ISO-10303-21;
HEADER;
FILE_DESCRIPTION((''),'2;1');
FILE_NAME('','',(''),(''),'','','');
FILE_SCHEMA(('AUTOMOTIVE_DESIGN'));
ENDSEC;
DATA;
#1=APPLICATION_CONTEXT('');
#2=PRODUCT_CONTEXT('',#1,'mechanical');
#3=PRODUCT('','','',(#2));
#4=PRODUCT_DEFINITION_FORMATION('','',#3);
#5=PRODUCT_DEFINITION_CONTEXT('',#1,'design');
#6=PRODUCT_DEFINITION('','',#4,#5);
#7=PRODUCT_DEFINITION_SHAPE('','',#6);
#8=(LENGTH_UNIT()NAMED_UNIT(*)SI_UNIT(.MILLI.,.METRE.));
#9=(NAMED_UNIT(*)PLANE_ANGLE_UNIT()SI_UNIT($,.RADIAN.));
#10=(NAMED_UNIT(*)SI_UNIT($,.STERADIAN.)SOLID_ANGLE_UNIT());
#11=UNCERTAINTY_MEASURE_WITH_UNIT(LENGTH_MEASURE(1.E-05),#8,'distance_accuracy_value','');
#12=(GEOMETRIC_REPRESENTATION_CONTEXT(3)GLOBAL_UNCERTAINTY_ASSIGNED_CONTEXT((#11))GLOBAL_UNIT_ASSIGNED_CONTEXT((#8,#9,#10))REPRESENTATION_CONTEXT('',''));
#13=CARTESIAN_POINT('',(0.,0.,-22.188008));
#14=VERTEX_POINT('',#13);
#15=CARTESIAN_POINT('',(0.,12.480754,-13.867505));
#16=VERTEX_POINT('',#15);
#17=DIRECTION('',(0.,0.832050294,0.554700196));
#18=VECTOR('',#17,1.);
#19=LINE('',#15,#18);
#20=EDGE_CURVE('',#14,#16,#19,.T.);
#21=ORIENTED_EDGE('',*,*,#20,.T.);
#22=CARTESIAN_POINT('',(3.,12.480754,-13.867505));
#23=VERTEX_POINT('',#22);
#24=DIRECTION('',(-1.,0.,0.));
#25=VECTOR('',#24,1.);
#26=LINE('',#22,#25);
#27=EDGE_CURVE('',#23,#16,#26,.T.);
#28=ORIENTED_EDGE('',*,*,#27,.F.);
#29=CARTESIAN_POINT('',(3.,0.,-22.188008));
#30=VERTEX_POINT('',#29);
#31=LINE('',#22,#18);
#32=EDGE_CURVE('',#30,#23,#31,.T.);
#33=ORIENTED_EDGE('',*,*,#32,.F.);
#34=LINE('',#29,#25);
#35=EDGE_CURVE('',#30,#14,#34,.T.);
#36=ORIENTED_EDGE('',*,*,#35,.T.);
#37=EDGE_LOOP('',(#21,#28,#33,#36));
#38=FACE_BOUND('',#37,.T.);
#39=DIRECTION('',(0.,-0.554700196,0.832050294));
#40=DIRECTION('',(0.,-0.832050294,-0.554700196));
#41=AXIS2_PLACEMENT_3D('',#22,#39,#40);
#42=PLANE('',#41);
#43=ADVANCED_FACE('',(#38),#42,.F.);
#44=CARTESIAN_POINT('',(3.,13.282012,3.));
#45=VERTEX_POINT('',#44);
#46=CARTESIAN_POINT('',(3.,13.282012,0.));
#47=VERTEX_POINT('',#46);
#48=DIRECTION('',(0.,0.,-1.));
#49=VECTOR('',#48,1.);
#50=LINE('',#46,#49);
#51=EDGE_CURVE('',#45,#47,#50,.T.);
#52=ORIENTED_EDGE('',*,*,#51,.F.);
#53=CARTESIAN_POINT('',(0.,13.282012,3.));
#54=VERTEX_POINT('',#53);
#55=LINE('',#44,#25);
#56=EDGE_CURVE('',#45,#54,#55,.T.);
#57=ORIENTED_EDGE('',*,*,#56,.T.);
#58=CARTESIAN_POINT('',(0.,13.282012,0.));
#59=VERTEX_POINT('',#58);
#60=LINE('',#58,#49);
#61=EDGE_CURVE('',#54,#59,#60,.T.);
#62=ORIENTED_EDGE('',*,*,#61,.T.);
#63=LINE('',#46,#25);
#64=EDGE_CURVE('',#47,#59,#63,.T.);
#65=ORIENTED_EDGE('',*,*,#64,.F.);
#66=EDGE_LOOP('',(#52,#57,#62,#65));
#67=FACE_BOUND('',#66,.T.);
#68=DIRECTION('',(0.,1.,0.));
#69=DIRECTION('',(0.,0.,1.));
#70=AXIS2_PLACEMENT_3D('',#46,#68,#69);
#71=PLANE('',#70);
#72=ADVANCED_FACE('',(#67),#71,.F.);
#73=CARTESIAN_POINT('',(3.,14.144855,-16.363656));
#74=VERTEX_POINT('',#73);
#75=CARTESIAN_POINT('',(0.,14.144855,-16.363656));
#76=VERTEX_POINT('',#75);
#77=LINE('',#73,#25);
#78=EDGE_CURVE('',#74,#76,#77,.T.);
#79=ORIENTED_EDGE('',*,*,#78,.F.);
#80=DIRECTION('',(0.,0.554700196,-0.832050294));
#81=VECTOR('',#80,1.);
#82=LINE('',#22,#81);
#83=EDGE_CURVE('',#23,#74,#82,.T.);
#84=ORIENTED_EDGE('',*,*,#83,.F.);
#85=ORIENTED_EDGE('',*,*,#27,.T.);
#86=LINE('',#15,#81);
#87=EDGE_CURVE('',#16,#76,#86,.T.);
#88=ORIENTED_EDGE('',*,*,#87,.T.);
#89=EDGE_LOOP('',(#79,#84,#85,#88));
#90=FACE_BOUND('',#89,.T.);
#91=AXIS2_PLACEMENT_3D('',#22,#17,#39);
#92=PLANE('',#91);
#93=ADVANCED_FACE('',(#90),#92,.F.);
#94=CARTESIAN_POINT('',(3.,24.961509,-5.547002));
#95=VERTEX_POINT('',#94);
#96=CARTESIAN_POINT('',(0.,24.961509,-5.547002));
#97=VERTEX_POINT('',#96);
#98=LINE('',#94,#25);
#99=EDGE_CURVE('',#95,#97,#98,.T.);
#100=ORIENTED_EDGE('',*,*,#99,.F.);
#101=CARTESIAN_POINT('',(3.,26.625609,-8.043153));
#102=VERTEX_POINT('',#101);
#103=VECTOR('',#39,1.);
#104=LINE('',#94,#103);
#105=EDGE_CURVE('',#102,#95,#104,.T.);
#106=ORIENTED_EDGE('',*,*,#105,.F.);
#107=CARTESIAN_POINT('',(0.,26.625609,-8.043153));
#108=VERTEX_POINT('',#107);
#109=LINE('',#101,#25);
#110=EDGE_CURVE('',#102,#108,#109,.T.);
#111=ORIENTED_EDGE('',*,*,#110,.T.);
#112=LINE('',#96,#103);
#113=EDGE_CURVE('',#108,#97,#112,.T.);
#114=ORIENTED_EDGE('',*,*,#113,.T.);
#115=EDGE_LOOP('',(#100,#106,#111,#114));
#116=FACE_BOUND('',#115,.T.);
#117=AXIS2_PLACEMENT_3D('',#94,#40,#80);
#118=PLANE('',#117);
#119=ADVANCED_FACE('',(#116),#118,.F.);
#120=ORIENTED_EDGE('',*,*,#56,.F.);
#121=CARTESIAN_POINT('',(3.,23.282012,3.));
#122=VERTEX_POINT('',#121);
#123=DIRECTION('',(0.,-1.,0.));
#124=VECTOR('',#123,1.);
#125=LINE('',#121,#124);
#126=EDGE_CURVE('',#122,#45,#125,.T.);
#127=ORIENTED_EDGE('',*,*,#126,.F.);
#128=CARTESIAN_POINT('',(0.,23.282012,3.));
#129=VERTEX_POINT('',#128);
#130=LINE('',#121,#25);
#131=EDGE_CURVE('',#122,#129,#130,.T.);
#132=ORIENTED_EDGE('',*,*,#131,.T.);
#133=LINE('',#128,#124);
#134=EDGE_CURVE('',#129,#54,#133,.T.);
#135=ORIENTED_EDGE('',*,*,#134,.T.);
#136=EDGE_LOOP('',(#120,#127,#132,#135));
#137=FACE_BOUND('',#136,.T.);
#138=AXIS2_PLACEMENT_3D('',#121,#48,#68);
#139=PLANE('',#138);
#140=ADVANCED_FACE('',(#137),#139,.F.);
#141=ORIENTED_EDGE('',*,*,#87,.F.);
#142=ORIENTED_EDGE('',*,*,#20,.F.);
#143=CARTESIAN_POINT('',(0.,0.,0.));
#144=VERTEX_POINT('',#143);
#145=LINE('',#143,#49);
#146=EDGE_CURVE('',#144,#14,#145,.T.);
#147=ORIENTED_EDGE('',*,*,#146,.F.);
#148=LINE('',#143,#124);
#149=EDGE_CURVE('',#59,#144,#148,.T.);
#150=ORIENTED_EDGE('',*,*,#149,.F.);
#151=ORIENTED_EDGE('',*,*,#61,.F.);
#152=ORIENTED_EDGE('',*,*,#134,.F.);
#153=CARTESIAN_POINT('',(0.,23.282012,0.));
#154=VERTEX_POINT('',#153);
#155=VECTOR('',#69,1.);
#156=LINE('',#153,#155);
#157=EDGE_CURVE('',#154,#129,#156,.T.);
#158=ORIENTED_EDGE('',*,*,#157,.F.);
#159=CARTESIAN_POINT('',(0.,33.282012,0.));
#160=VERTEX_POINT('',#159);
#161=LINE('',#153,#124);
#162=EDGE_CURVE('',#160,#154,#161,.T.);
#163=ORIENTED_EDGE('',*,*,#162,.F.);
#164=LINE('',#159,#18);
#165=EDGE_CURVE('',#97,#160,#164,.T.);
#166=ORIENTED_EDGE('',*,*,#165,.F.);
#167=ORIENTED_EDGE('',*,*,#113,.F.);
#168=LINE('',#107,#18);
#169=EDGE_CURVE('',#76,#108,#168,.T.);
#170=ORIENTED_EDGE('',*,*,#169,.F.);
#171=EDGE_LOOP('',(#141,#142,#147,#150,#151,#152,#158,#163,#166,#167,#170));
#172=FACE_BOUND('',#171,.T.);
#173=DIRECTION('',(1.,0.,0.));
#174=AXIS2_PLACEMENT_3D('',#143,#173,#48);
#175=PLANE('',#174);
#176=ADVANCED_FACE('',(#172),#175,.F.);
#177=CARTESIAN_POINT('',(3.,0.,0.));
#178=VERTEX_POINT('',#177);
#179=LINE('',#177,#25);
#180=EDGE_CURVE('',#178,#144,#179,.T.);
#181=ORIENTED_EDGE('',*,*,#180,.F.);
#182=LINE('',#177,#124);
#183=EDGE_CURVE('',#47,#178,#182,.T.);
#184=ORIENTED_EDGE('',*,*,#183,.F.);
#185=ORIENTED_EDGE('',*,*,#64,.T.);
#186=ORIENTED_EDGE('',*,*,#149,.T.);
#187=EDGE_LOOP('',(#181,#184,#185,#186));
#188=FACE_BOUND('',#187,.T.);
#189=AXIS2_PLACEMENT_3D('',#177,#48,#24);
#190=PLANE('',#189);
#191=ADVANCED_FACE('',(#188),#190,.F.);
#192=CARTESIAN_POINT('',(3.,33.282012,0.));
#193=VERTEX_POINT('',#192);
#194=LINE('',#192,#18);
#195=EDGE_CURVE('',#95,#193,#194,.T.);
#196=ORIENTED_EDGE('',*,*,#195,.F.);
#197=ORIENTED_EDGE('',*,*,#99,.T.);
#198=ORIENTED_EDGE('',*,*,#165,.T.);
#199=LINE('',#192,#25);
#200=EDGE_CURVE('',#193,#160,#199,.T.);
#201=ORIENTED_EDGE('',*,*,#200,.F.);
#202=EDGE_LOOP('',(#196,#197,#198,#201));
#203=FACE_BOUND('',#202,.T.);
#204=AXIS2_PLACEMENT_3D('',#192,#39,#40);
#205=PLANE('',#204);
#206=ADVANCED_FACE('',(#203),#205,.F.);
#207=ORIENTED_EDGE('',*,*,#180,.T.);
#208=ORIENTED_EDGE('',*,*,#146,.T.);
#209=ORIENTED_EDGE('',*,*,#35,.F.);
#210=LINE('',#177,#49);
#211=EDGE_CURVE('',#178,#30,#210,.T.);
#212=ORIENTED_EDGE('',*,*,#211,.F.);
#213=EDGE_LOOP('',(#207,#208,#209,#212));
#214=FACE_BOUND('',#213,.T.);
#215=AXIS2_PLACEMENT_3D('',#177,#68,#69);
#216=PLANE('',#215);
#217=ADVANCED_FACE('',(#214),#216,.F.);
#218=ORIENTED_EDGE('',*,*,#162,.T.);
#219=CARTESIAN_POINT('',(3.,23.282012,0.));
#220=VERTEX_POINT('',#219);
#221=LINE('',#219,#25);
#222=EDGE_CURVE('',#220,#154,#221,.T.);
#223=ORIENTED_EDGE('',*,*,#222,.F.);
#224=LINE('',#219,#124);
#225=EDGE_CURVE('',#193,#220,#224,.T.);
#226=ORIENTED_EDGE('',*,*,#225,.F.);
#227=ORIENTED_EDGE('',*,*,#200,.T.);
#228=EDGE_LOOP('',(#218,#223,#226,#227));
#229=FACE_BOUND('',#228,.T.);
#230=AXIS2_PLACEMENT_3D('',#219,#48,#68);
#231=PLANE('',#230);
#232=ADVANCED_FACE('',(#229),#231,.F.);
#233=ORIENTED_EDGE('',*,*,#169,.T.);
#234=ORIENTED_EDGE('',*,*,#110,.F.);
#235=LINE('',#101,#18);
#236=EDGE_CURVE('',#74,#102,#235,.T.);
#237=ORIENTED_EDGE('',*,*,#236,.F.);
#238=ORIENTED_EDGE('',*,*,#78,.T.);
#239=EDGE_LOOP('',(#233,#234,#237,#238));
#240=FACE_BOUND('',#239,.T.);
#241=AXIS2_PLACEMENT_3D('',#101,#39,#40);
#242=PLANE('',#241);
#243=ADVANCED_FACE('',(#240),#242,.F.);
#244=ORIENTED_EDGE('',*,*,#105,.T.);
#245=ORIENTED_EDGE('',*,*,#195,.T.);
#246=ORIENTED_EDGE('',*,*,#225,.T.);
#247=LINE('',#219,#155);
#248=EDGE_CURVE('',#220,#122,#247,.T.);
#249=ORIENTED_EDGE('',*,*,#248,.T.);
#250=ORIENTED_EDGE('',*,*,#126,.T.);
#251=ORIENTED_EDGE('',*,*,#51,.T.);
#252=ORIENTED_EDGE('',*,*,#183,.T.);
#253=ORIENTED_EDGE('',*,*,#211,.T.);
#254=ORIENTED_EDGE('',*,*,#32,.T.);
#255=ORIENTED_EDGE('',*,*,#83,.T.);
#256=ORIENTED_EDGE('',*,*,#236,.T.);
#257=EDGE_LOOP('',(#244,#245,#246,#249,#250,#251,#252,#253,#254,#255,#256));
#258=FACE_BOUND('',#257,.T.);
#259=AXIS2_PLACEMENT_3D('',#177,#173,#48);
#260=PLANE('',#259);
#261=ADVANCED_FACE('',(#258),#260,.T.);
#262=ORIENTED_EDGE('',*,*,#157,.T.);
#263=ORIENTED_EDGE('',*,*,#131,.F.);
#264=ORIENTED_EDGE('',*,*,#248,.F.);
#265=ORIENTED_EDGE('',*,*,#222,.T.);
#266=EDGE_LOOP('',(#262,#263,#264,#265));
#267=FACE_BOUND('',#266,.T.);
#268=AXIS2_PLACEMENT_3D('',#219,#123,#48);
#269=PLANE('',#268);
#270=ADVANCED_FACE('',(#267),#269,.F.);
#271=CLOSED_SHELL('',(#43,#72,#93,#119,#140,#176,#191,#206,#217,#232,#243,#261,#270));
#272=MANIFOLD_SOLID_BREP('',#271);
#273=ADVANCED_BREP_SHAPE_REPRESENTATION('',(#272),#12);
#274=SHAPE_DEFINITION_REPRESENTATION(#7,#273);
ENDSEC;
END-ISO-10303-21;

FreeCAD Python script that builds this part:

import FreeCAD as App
import Part
import Sketcher

V = App.Vector
Q = App.Units.Quantity

doc = App.newDocument("Part")
body = doc.addObject("PartDesign::Body", "Body")

# Sketch on YZ plane
sketch1 = body.newObject("Sketcher::SketchObject", "Sketch")
sketch1.AttachmentSupport = (doc.getObject("YZ_Plane"), [""])
sketch1.MapMode = "FlatFace"
sketch1.addGeometry([
    Part.LineSegment(V(25, -5.5, 0), V(33.3, 0, 0)),  # 0
    Part.LineSegment(V(33.3, 0, 0), V(23.3, 0, 0)),  # 1
    Part.LineSegment(V(23.3, 0, 0), V(23.3, 3, 0)),  # 2
    Part.LineSegment(V(23.3, 3, 0), V(13.3, 3, 0)),  # 3
    Part.LineSegment(V(13.3, 3, 0), V(13.3, 0, 0)),  # 4
    Part.LineSegment(V(13.3, 0, 0), V(0, 0, 0)),  # 5
    Part.LineSegment(V(0, 0, 0), V(0, -22.2, 0)),  # 6
    Part.LineSegment(V(0, -22.2, 0), V(12.5, -13.9, 0)),  # 7
    Part.LineSegment(V(12.5, -13.9, 0), V(14.1, -16.4, 0)),  # 8
    Part.LineSegment(V(14.1, -16.4, 0), V(26.6, -8, 0)),  # 9
    Part.LineSegment(V(26.6, -8, 0), V(25, -5.5, 0)),  # 10
], False)
sketch1.addConstraint([
    Sketcher.Constraint("Coincident", 0, 2, 1, 1),
    Sketcher.Constraint("Coincident", 1, 2, 2, 1),
    Sketcher.Constraint("Coincident", 2, 2, 3, 1),
    Sketcher.Constraint("Coincident", 3, 2, 4, 1),
    Sketcher.Constraint("Coincident", 4, 2, 5, 1),
    Sketcher.Constraint("Coincident", 5, 2, 6, 1),
    Sketcher.Constraint("Coincident", 6, 2, 7, 1),
    Sketcher.Constraint("Coincident", 7, 2, 8, 1),
    Sketcher.Constraint("Coincident", 8, 2, 9, 1),
    Sketcher.Constraint("Coincident", 9, 2, 10, 1),
    Sketcher.Constraint("Coincident", 10, 2, 0, 1),
    Sketcher.Constraint("Horizontal", 1),
    Sketcher.Constraint("Vertical", 2),
    Sketcher.Constraint("Horizontal", 3),
    Sketcher.Constraint("Vertical", 4),
    Sketcher.Constraint("Horizontal", 5),
    Sketcher.Constraint("Vertical", 6),
    Sketcher.Constraint("Coincident", 5, 2, -1, 1),
    Sketcher.Constraint("PointOnObject", 0, 2, -1),
    Sketcher.Constraint("Parallel", 0, 7),
    Sketcher.Constraint("Perpendicular", 7, 8),
    Sketcher.Constraint("Perpendicular", 8, 9),
    Sketcher.Constraint("Perpendicular", 9, 10),
    Sketcher.Constraint("Equal", 1, 3),
    Sketcher.Constraint("Equal", 7, 9),
    Sketcher.Constraint("Equal", 8, 10),
    Sketcher.Constraint("DistanceX", 1, 2, 1, 1, Q("10 mm")),
    Sketcher.Constraint("DistanceY", 2, 1, 2, 2, Q("3 mm")),
    Sketcher.Constraint("Distance", 0, Q("10 mm")),
    Sketcher.Constraint("Distance", 7, Q("15 mm")),
    Sketcher.Constraint("Distance", 8, Q("3 mm")),
    Sketcher.Constraint("DistanceY", 10, 2, -1, 1, Q("5.547002 mm")),
])
pad1 = body.newObject("PartDesign::Pad", "Pad")
pad1.Profile = sketch1
pad1.Length = 3

doc.recompute()
